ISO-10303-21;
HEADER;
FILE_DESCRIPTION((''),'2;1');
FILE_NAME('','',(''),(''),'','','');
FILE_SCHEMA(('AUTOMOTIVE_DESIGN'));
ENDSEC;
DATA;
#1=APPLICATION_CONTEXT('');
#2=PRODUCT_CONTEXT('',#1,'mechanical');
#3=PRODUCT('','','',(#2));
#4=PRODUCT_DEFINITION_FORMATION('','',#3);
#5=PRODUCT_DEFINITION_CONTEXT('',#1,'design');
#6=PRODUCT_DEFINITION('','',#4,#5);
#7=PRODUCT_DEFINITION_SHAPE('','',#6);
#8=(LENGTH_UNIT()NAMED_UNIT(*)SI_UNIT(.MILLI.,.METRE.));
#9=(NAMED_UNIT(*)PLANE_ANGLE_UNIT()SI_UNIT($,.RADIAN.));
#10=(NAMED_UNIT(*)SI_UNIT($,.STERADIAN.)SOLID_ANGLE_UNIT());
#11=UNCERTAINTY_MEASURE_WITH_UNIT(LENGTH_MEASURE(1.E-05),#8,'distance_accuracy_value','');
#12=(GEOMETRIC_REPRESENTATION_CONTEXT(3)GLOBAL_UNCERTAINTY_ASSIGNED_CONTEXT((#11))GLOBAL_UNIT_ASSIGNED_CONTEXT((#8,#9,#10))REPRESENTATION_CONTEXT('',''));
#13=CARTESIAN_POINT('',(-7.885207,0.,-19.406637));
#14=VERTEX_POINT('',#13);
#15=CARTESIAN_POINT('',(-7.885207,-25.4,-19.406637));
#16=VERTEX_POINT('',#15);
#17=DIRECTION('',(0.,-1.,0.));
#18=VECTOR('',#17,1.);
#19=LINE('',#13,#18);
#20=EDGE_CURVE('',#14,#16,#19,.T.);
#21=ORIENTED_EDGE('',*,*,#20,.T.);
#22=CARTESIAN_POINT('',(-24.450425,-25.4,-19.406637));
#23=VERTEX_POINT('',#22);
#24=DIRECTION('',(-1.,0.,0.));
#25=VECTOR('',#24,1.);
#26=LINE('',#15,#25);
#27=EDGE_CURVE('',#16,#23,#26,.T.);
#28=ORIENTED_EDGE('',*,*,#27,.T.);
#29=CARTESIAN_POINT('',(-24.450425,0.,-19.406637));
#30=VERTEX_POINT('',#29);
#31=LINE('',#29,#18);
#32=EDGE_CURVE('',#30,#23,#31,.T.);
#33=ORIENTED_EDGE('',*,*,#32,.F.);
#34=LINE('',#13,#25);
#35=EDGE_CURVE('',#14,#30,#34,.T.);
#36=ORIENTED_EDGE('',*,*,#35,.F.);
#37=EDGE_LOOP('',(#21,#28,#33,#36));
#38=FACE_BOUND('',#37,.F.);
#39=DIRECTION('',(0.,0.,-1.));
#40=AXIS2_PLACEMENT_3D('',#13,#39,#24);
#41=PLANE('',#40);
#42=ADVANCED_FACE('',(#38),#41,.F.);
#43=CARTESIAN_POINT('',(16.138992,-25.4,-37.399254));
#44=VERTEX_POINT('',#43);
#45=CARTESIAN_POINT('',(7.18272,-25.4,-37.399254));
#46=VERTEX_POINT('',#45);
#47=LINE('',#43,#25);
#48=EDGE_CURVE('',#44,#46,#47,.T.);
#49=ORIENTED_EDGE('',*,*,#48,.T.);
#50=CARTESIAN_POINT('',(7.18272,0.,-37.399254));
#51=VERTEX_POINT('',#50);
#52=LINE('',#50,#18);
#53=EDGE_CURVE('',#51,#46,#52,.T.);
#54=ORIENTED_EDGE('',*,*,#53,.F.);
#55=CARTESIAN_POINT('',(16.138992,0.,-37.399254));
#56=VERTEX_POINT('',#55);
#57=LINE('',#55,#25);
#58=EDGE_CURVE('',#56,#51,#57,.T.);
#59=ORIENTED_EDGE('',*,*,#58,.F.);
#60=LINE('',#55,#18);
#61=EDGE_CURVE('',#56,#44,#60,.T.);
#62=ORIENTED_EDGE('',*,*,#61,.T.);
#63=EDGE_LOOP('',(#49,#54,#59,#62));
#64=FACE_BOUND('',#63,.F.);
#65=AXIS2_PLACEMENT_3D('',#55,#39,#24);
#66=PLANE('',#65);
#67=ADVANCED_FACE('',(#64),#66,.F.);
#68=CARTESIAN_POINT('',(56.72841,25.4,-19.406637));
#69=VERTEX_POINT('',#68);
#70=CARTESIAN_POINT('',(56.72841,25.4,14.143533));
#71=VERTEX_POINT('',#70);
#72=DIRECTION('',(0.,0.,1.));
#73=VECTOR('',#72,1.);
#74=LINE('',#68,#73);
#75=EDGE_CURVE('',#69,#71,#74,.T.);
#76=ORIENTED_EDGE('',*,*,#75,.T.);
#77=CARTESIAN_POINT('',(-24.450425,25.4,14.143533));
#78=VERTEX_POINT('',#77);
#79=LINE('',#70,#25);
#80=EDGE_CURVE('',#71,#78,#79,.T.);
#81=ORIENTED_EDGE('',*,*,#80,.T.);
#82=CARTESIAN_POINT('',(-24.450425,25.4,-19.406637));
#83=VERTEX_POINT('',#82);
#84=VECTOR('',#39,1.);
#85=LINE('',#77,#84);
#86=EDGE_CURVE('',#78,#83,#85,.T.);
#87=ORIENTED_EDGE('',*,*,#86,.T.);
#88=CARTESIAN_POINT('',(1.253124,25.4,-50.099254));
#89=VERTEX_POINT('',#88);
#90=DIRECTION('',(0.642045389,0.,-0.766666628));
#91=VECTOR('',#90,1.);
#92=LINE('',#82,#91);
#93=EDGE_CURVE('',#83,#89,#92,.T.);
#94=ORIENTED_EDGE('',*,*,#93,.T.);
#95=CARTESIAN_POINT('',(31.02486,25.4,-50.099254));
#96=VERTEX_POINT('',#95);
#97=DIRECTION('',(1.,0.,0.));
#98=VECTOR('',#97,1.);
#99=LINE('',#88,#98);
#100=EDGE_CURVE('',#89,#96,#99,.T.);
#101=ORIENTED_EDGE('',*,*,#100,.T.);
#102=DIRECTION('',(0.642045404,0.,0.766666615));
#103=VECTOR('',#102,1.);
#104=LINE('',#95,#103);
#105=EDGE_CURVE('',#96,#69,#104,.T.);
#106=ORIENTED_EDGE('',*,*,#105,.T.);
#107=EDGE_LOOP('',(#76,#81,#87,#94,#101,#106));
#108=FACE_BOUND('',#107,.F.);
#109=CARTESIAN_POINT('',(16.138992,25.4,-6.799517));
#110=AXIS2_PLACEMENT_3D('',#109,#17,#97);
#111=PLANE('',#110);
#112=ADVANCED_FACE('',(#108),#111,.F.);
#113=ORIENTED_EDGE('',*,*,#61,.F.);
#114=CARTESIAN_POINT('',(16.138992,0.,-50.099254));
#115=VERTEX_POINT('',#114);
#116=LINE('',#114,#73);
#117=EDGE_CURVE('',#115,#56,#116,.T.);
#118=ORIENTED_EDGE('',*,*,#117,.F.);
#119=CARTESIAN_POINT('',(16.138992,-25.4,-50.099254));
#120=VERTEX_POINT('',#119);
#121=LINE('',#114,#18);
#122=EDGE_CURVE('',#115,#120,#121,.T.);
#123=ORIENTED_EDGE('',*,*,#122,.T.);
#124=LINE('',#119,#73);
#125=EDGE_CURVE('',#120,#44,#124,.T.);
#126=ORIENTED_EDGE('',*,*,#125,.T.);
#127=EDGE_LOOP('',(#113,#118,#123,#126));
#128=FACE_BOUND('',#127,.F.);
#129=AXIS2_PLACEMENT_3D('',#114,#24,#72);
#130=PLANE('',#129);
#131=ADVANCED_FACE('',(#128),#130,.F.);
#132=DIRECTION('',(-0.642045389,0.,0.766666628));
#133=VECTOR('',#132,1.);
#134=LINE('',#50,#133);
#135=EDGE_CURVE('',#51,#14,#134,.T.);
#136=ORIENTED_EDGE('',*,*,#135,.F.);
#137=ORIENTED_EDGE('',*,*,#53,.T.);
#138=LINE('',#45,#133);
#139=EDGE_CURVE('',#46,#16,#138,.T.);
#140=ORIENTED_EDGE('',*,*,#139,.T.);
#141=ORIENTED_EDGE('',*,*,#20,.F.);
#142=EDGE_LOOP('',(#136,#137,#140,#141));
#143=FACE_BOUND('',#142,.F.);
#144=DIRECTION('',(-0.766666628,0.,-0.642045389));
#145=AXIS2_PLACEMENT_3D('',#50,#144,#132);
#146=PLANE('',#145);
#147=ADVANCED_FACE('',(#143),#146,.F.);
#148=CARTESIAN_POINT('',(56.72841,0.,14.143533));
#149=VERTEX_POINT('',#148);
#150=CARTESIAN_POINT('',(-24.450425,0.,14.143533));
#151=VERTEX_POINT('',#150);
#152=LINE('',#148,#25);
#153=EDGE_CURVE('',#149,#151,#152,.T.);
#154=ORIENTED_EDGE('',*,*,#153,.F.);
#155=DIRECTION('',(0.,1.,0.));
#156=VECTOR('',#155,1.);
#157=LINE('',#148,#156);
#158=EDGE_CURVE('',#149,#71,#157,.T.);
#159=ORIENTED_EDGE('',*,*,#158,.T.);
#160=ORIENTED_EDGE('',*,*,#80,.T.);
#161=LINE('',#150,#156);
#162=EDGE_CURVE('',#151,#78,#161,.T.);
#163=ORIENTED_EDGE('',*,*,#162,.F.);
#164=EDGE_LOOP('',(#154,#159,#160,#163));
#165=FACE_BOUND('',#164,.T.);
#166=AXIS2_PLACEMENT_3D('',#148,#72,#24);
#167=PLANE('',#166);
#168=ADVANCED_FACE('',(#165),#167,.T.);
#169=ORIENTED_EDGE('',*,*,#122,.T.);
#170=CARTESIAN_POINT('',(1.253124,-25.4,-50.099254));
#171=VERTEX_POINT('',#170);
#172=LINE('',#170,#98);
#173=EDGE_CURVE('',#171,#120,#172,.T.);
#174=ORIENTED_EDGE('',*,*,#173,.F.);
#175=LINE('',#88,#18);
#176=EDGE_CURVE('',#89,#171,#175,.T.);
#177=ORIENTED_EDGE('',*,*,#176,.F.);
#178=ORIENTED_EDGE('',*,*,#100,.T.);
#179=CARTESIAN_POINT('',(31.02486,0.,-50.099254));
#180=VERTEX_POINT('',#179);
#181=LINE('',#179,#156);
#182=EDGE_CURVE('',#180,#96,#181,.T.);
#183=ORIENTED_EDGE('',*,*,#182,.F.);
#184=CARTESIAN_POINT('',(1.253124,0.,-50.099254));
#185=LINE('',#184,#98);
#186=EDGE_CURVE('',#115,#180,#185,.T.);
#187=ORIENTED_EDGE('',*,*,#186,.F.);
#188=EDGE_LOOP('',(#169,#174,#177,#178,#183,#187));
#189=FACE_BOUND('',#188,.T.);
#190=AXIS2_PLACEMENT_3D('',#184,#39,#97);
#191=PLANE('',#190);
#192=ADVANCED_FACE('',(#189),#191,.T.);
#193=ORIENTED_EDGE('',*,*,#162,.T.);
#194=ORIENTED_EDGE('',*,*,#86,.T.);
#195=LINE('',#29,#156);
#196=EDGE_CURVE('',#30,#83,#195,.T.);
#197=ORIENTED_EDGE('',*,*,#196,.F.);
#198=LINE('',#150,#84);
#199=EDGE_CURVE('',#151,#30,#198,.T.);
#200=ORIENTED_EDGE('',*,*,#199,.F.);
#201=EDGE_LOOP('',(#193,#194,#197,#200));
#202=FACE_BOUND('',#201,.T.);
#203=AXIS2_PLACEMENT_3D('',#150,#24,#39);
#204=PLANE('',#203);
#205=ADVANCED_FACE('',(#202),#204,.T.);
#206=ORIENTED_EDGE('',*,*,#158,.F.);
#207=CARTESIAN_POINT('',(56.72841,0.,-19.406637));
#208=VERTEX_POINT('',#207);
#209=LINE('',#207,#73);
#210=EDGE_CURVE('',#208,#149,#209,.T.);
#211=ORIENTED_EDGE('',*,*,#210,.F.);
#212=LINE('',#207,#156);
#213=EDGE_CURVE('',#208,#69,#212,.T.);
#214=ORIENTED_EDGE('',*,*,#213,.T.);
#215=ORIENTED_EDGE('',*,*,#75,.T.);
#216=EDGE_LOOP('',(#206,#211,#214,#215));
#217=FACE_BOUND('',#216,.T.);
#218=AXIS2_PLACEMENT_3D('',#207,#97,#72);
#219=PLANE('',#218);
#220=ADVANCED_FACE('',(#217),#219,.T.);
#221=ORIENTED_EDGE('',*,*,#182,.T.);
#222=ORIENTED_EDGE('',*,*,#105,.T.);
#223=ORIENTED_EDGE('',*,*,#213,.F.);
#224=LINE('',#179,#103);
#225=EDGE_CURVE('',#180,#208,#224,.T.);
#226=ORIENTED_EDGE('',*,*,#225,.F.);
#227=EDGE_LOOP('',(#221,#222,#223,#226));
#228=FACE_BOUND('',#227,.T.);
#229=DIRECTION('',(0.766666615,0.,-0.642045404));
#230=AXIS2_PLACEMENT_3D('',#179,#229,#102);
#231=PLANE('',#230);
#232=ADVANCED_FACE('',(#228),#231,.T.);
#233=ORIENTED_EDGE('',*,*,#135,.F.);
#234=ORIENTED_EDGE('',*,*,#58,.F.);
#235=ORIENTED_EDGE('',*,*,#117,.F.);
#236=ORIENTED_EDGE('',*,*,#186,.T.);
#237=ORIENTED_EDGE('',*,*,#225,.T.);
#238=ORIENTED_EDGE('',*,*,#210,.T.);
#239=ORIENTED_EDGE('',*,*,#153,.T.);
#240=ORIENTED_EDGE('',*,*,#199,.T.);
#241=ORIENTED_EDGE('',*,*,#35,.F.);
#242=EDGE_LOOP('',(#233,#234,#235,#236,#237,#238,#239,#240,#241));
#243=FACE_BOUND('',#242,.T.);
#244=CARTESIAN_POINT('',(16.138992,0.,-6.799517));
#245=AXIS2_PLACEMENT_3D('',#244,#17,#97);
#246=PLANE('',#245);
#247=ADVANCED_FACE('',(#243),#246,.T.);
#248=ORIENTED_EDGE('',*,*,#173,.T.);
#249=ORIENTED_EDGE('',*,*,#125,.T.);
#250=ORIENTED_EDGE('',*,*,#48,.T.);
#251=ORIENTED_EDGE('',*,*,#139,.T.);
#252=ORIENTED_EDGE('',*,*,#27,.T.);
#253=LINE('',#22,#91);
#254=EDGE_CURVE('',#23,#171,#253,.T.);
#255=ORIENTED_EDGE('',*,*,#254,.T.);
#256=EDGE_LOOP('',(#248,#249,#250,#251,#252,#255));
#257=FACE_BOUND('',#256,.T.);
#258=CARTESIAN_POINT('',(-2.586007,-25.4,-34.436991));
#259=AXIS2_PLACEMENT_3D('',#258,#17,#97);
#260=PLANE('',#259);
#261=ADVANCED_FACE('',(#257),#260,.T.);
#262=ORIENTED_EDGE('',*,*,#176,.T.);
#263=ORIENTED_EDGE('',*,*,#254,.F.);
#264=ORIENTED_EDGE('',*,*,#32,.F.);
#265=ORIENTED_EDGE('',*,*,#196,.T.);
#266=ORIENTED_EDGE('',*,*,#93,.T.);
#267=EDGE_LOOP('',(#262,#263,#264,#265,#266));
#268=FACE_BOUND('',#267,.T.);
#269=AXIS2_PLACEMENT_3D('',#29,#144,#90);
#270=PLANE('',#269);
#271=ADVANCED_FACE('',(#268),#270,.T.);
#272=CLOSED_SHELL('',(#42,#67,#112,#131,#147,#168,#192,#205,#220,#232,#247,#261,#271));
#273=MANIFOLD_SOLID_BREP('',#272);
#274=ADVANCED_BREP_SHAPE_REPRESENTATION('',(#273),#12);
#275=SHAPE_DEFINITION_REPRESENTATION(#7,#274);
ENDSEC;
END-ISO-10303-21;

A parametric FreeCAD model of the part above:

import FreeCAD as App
import Part
import Sketcher
Q = App.Units.Quantity


def add_polygon(sketch, points):
    """Adds a closed chain of lines whose ends are joined by coincident constraints."""
    first, n = sketch.GeometryCount, len(points)
    for a, b in zip(points, points[1:] + points[:1]):
        sketch.addGeometry(Part.LineSegment(App.Vector(*a, 0), App.Vector(*b, 0)), False)
    for i in range(n):
        sketch.addConstraint(Sketcher.Constraint("Coincident", first + i, 2, first + (i + 1) % n, 1))

doc = App.newDocument("Part")
body = doc.addObject("PartDesign::Body", "Body")

# Sketch on XZ plane
sketch1 = doc.addObject("Sketcher::SketchObject", "Sketch")
body.addObject(sketch1)
sketch1.AttachmentSupport = (doc.XZ_Plane, [""])
sketch1.MapMode = "FlatFace"
add_polygon(sketch1, [(-8, -19), (-24, -19), (1, -50), (16, -50), (16, -37), (7, -37)])  # lines 0-5
sketch1.addConstraint(Sketcher.Constraint("Horizontal", 0))
sketch1.addConstraint(Sketcher.Constraint("Horizontal", 2))
sketch1.addConstraint(Sketcher.Constraint("Vertical", 3))
sketch1.addConstraint(Sketcher.Constraint("Horizontal", 4))
sketch1.addConstraint(Sketcher.Constraint("Parallel", 1, 5))
sketch1.addConstraint(Sketcher.Constraint("DistanceY", 3, 1, 3, 2, Q("0.5 in")))
sketch1.addConstraint(Sketcher.Constraint("DistanceX", 4, 2, 4, 1, 8.956272))
sketch1.addConstraint(Sketcher.Constraint("DistanceX", 5, 2, 3, 2, 24.024199))
sketch1.addConstraint(Sketcher.Constraint("Distance", 1, 40.03385))
sketch1.addConstraint(Sketcher.Constraint("DistanceX", 0, 2, 0, 1, 16.565218))
sketch1.addConstraint(Sketcher.Constraint("DistanceX", -1, 1, 2, 2, 16.138992))
sketch1.addConstraint(Sketcher.Constraint("DistanceY", 0, 2, -1, 1, 19.406637))
pad1 = doc.addObject("PartDesign::Pad", "Pad")
body.addObject(pad1)
pad1.Profile = sketch1
pad1.Length = Q("1 in")

# Sketch on XZ plane
sketch2 = doc.addObject("Sketcher::SketchObject", "Sketch001")
body.addObject(sketch2)
sketch2.AttachmentSupport = (doc.XZ_Plane, [""])
sketch2.MapMode = "FlatFace"
add_polygon(sketch2, [(57, 14), (-24, 14), (-24, -19), (1, -50), (31, -50), (57, -19)])  # lines 0-5
sketch2.addConstraint(Sketcher.Constraint("Horizontal", 0))
sketch2.addConstraint(Sketcher.Constraint("Vertical", 1))
sketch2.addConstraint(Sketcher.Constraint("Horizontal", 3))
sketch2.addConstraint(Sketcher.Constraint("Vertical", 5))
sketch2.addConstraint(Sketcher.Constraint("Horizontal", 1, 2, 4, 2))
sketch2.addConstraint(Sketcher.Constraint("Equal", 2, 4))
sketch2.addConstraint(Sketcher.Constraint("DistanceY", 1, 2, 1, 1, 33.55017))
sketch2.addConstraint(Sketcher.Constraint("Distance", 2, 40.03385))
sketch2.addConstraint(Sketcher.Constraint("DistanceX", 0, 2, 0, 1, 81.178835))
sketch2.addConstraint(Sketcher.Constraint("DistanceX", 3, 1, 3, 2, 29.771736))
sketch2.addConstraint(Sketcher.Constraint("DistanceX", -1, 1, 3, 2, 31.02486))
sketch2.addConstraint(Sketcher.Constraint("DistanceY", -1, 1, 0, 2, 14.143533))
pad2 = doc.addObject("PartDesign::Pad", "Pad001")
body.addObject(pad2)
pad2.Profile = sketch2
pad2.Length = Q("1 in")
pad2.Reversed = True

doc.recompute()
